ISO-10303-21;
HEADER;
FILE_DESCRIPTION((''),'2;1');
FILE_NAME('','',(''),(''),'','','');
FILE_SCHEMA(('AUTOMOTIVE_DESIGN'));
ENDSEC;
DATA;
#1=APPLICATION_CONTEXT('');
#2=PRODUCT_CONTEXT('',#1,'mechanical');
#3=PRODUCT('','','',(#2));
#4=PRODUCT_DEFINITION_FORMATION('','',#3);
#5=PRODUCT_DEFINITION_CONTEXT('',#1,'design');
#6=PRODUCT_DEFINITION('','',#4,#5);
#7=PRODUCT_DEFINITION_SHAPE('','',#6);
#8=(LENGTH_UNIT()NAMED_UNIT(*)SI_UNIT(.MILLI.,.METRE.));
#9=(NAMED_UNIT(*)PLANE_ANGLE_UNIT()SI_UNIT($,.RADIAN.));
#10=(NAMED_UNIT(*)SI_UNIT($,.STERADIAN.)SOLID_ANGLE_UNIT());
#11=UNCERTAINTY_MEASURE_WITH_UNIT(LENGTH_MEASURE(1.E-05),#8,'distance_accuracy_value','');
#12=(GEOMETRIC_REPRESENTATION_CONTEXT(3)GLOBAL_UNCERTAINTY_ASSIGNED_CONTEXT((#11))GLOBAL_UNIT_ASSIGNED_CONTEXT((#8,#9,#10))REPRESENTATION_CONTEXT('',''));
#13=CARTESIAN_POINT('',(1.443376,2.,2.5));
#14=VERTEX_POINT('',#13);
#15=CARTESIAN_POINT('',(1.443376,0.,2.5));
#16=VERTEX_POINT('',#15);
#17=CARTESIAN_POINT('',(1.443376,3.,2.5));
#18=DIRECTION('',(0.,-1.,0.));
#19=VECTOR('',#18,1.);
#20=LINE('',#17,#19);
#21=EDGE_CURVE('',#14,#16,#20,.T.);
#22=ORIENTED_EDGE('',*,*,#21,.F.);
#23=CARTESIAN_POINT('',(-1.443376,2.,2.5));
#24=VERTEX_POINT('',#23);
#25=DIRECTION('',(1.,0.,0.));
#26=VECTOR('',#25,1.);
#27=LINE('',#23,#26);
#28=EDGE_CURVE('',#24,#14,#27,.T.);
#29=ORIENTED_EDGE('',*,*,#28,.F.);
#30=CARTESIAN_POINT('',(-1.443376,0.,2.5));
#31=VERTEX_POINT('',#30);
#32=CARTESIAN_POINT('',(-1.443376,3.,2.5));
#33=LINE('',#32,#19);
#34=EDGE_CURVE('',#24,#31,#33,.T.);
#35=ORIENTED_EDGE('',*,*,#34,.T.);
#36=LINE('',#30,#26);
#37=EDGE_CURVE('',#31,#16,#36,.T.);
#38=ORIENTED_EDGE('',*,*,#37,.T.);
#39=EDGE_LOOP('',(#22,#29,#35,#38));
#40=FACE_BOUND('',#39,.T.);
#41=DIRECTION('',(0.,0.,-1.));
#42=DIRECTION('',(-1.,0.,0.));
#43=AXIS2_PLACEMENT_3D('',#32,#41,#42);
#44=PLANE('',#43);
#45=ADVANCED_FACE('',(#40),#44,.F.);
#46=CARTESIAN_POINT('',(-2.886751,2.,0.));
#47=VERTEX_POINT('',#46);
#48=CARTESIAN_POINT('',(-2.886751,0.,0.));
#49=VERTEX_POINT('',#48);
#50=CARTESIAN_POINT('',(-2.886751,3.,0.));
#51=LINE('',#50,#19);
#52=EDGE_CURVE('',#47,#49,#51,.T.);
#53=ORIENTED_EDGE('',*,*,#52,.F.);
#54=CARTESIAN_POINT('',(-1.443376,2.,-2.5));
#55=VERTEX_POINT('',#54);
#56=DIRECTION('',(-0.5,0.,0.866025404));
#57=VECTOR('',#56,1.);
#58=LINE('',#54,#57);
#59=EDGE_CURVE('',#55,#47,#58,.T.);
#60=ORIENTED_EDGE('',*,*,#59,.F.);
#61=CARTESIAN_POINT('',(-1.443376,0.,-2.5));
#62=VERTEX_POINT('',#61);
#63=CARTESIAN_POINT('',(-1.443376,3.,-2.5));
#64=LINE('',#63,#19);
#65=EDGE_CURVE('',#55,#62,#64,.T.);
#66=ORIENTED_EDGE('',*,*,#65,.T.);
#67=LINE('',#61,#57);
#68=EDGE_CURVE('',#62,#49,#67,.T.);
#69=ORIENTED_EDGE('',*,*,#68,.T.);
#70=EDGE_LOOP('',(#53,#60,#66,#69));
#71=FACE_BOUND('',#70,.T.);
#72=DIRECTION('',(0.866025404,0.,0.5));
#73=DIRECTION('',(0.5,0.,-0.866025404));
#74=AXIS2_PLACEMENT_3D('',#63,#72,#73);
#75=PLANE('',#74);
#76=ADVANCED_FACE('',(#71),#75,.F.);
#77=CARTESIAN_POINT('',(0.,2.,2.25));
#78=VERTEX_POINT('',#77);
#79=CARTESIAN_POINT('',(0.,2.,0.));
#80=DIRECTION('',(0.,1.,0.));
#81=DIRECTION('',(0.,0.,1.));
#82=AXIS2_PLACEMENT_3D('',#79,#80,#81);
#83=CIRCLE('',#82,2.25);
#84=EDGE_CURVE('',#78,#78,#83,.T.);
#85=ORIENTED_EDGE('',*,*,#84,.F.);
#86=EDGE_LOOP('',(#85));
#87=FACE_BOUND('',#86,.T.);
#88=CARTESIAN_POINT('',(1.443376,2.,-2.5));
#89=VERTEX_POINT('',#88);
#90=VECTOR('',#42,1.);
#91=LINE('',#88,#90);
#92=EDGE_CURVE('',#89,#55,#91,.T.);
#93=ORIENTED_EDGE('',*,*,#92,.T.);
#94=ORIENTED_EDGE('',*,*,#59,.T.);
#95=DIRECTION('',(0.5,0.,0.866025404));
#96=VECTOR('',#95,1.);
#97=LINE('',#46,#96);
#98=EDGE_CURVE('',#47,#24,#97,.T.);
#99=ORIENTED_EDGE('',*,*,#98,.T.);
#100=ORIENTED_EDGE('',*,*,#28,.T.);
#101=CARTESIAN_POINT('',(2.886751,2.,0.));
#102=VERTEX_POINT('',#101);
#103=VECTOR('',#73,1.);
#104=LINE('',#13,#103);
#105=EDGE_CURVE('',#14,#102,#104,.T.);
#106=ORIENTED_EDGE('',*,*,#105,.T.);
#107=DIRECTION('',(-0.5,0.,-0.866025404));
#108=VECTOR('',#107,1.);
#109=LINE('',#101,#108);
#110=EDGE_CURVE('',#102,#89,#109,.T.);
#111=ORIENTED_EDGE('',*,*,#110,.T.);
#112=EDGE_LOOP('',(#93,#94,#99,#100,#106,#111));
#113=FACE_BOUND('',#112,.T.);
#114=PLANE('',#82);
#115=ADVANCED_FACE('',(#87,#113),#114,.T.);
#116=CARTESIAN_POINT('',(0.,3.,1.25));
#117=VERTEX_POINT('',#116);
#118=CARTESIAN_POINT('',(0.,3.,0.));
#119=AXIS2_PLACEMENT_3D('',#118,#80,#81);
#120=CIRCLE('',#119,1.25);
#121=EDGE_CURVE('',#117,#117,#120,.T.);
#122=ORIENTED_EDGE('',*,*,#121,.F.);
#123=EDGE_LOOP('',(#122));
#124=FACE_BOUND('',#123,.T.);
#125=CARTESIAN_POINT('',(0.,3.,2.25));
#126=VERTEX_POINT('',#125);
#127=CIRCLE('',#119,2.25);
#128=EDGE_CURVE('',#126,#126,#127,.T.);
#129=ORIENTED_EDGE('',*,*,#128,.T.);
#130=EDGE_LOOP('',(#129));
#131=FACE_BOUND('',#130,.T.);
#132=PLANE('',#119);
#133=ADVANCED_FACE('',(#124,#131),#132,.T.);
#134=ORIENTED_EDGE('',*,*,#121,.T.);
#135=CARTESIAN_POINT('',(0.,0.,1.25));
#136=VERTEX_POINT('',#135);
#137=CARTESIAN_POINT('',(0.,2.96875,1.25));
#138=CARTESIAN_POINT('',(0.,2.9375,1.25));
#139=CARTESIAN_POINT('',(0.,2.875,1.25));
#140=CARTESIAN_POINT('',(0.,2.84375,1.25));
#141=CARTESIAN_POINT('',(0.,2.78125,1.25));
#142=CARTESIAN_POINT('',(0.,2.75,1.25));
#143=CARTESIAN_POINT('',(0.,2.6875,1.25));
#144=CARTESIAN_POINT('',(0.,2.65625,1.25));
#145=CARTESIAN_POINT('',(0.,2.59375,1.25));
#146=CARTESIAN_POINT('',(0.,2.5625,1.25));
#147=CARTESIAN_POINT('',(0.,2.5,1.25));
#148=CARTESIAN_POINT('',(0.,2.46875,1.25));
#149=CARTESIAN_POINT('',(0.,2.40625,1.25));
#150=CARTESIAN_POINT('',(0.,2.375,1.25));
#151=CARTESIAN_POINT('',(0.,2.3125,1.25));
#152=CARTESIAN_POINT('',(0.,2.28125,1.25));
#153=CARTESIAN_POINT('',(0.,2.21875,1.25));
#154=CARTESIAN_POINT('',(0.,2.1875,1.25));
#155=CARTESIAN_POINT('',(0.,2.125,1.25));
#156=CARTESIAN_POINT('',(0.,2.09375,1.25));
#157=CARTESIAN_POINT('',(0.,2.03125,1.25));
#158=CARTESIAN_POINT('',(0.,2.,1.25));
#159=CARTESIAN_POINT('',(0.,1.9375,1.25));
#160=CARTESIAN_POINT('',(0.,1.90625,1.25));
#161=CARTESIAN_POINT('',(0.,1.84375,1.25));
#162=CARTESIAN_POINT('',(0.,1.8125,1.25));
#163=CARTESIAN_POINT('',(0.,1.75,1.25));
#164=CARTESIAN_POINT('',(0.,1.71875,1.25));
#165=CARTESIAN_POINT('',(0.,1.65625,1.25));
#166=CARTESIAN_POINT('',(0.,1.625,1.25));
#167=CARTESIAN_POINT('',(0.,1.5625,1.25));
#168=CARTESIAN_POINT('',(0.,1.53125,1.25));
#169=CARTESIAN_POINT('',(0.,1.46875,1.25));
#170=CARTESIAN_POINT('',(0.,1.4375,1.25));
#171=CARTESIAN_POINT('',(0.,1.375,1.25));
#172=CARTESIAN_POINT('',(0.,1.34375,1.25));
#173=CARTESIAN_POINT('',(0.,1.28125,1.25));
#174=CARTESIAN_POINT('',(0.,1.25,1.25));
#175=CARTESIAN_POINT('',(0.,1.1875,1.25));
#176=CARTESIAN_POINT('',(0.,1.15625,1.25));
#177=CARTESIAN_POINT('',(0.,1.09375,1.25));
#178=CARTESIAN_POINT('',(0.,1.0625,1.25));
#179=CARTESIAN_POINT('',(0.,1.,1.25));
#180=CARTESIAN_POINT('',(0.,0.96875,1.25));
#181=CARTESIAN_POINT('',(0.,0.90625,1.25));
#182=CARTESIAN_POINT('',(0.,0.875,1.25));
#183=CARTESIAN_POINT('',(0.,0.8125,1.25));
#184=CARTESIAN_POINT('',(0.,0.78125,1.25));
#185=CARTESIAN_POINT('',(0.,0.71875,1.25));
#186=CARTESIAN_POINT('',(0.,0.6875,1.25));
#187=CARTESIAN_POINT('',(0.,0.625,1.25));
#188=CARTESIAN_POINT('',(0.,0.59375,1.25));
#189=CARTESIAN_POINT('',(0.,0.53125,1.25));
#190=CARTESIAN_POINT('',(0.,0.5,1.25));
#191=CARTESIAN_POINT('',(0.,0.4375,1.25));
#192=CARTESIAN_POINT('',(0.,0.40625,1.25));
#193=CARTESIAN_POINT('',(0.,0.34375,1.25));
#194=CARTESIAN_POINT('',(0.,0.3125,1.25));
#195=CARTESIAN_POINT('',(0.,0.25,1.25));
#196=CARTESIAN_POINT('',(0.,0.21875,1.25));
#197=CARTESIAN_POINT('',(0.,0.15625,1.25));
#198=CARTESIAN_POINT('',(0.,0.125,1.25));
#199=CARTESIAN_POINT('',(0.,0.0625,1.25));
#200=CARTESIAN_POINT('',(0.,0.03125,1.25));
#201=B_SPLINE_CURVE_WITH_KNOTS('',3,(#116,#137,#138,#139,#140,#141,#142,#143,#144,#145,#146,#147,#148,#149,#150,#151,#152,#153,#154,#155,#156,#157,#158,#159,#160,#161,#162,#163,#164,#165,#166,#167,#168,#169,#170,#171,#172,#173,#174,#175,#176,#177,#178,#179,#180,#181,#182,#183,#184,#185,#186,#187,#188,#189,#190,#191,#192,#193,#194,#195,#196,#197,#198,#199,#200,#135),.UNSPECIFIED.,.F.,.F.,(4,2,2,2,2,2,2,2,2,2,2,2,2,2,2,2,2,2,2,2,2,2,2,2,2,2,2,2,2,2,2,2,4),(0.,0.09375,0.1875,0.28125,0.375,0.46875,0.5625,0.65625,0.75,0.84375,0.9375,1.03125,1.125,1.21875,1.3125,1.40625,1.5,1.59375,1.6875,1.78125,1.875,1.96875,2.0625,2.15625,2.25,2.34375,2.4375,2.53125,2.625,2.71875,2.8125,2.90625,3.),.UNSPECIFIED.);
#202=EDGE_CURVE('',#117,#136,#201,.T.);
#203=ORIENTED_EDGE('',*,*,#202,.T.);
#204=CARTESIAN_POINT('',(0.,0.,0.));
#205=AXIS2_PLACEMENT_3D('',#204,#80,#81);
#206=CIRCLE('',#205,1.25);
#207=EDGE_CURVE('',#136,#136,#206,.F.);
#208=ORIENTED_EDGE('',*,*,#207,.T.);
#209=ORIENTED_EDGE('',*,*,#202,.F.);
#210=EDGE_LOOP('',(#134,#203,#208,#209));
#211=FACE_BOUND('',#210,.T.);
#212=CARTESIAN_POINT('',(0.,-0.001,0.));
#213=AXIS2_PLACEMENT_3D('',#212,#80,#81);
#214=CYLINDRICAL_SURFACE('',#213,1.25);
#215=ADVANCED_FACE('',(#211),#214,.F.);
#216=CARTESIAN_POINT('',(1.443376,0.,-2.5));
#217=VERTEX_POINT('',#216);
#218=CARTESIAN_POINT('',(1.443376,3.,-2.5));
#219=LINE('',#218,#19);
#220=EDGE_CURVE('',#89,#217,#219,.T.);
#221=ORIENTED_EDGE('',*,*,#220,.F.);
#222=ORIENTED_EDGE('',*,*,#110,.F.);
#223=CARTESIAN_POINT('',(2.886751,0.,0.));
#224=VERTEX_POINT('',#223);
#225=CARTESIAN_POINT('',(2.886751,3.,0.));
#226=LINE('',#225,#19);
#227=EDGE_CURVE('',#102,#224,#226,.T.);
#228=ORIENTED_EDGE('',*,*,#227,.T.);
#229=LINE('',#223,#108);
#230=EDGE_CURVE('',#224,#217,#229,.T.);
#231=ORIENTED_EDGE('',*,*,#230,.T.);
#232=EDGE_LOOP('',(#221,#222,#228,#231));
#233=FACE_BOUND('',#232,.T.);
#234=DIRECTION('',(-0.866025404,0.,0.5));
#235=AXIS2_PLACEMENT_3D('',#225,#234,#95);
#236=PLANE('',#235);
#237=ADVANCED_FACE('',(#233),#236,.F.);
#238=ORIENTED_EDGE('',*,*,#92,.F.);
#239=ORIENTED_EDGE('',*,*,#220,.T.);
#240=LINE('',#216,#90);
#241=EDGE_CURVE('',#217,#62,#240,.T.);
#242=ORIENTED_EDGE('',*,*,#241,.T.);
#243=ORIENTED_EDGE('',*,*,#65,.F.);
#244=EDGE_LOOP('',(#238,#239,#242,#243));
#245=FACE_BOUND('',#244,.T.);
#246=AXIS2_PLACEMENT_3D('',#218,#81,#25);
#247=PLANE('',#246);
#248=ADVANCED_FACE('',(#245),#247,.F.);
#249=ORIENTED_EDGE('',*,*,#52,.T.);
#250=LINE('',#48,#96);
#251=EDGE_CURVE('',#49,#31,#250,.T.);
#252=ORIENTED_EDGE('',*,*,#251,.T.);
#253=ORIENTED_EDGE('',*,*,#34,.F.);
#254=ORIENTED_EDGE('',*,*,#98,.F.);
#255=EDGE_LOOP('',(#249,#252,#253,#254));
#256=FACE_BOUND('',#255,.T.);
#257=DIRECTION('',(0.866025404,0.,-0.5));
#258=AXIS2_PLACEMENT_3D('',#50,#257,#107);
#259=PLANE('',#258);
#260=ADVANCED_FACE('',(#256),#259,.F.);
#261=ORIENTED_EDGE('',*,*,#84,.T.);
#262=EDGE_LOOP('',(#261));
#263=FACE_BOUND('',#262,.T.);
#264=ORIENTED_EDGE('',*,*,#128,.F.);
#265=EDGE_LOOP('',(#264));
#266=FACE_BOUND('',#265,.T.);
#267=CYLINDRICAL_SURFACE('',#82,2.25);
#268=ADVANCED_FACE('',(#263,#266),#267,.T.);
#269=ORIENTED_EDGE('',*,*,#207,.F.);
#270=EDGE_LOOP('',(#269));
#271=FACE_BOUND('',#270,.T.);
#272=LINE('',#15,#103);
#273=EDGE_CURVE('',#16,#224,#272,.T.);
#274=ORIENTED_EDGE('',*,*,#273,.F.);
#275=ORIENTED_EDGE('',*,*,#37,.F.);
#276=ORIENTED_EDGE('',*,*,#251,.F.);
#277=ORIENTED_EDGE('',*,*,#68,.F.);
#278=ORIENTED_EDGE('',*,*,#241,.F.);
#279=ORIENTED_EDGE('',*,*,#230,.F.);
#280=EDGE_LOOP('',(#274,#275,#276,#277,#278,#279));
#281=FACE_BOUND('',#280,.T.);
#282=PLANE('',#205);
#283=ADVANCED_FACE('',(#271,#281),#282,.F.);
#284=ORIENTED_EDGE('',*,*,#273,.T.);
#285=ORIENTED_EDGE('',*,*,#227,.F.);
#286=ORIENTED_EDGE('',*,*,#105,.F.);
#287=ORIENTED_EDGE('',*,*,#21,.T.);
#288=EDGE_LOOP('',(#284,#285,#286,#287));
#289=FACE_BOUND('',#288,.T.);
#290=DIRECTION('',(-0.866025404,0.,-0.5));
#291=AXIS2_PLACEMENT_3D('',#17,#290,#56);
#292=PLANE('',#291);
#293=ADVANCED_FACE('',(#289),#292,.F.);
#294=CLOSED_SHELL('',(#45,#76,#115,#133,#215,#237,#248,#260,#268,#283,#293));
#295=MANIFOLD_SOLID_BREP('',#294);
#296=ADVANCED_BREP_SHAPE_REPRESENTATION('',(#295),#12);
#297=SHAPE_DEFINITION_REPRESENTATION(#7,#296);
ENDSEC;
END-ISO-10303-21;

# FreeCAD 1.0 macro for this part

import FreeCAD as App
import Part
import Sketcher

V = App.Vector
Q = App.Units.Quantity

doc = App.newDocument("Part")
body = doc.addObject("PartDesign::Body", "Body")

sketch1 = body.newObject("Sketcher::SketchObject", "Sketch")
sketch1.AttachmentSupport = (doc.getObject("XZ_Plane"), [""])
sketch1.MapMode = "FlatFace"
sketch1.addGeometry([
    Part.LineSegment(V(2.9, 0, 0), V(1.4, -2.5, 0)),
    Part.LineSegment(V(1.4, -2.5, 0), V(-1.4, -2.5, 0)),
    Part.LineSegment(V(-1.4, -2.5, 0), V(-2.9, 0, 0)),
    Part.LineSegment(V(-2.9, 0, 0), V(-1.4, 2.5, 0)),
    Part.LineSegment(V(-1.4, 2.5, 0), V(1.4, 2.5, 0)),
    Part.LineSegment(V(1.4, 2.5, 0), V(2.9, 0, 0)),
], False)
sketch1.addConstraint([
    Sketcher.Constraint("Coincident", 0, 2, 1, 1),
    Sketcher.Constraint("Coincident", 1, 2, 2, 1),
    Sketcher.Constraint("Coincident", 2, 2, 3, 1),
    Sketcher.Constraint("Coincident", 3, 2, 4, 1),
    Sketcher.Constraint("Coincident", 4, 2, 5, 1),
    Sketcher.Constraint("Coincident", 5, 2, 0, 1),
    Sketcher.Constraint("Horizontal", 1),
    Sketcher.Constraint("Horizontal", 4),
    Sketcher.Constraint("Symmetric", 0, 2, 3, 2, -1, 1),
    Sketcher.Constraint("Symmetric", 2, 2, 5, 2, -1, 1),
    Sketcher.Constraint("PointOnObject", 2, 2, -1),
    Sketcher.Constraint("Parallel", 2, 5),
    Sketcher.Constraint("Vertical", 1, 2, 3, 2),
    Sketcher.Constraint("Angle", 0, Q("-120 deg")),
    Sketcher.Constraint("DistanceY", 1, 2, 3, 2, Q("5 mm")),
    Sketcher.Constraint("DistanceX", 1, 2, 1, 1, Q("2.886751 mm")),
])
pad1 = body.newObject("PartDesign::Pad", "Pad")
pad1.Profile = sketch1
pad1.Length = 3
pad1.Reversed = True

sketch2 = body.newObject("Sketcher::SketchObject", "Sketch001")
sketch2.AttachmentSupport = (doc.getObject("XZ_Plane"), [""])
sketch2.MapMode = "FlatFace"
sketch2.AttachmentOffset = App.Placement(V(0, 0, -3), App.Rotation())
sketch2.addGeometry(Part.Circle(V(0, 0, 0), V(0, 0, 1), 1.2), False)
sketch2.addConstraint([
    Sketcher.Constraint("Coincident", 0, 3, -1, 1),
    Sketcher.Constraint("Diameter", 0, Q("2.5 mm")),
])
pocket1 = body.newObject("PartDesign::Pocket", "Pocket")
pocket1.Profile = sketch2
pocket1.Type = "UpToFirst"
pocket1.Reversed = True

sketch3 = body.newObject("Sketcher::SketchObject", "Sketch002")
sketch3.AttachmentSupport = (doc.getObject("XZ_Plane"), [""])
sketch3.MapMode = "FlatFace"
sketch3.AttachmentOffset = App.Placement(V(0, 0, -3), App.Rotation())
sketch3.addGeometry([
    Part.LineSegment(V(-4.7, -4.3, 0), V(-4.7, 4.3, 0)),
    Part.LineSegment(V(-4.7, 4.3, 0), V(4.7, 4.3, 0)),
    Part.LineSegment(V(4.7, 4.3, 0), V(4.7, -4.3, 0)),
    Part.LineSegment(V(4.7, -4.3, 0), V(-4.7, -4.3, 0)),
    Part.Circle(V(0, 0, 0), V(0, 0, 1), 2.2),
], False)
sketch3.addConstraint([
    Sketcher.Constraint("Coincident", 0, 2, 1, 1),
    Sketcher.Constraint("Coincident", 1, 2, 2, 1),
    Sketcher.Constraint("Coincident", 2, 2, 3, 1),
    Sketcher.Constraint("Coincident", 3, 2, 0, 1),
    Sketcher.Constraint("Vertical", 0),
    Sketcher.Constraint("Horizontal", 1),
    Sketcher.Constraint("Vertical", 2),
    Sketcher.Constraint("Horizontal", 3),
    Sketcher.Constraint("Coincident", 4, 3, -1, 1),
    Sketcher.Constraint("Symmetric", 0, 2, 2, 2, -1, 1),
    Sketcher.Constraint("Diameter", 4, Q("4.5 mm")),
    Sketcher.Constraint("DistanceX", 1, 1, 1, 2, Q("9.416 mm")),
    Sketcher.Constraint("DistanceY", 0, 1, 0, 2, Q("8.642 mm")),
])
pocket2 = body.newObject("PartDesign::Pocket", "Pocket001")
pocket2.Profile = sketch3
pocket2.Length = 1
pocket2.Reversed = True

doc.recompute()
